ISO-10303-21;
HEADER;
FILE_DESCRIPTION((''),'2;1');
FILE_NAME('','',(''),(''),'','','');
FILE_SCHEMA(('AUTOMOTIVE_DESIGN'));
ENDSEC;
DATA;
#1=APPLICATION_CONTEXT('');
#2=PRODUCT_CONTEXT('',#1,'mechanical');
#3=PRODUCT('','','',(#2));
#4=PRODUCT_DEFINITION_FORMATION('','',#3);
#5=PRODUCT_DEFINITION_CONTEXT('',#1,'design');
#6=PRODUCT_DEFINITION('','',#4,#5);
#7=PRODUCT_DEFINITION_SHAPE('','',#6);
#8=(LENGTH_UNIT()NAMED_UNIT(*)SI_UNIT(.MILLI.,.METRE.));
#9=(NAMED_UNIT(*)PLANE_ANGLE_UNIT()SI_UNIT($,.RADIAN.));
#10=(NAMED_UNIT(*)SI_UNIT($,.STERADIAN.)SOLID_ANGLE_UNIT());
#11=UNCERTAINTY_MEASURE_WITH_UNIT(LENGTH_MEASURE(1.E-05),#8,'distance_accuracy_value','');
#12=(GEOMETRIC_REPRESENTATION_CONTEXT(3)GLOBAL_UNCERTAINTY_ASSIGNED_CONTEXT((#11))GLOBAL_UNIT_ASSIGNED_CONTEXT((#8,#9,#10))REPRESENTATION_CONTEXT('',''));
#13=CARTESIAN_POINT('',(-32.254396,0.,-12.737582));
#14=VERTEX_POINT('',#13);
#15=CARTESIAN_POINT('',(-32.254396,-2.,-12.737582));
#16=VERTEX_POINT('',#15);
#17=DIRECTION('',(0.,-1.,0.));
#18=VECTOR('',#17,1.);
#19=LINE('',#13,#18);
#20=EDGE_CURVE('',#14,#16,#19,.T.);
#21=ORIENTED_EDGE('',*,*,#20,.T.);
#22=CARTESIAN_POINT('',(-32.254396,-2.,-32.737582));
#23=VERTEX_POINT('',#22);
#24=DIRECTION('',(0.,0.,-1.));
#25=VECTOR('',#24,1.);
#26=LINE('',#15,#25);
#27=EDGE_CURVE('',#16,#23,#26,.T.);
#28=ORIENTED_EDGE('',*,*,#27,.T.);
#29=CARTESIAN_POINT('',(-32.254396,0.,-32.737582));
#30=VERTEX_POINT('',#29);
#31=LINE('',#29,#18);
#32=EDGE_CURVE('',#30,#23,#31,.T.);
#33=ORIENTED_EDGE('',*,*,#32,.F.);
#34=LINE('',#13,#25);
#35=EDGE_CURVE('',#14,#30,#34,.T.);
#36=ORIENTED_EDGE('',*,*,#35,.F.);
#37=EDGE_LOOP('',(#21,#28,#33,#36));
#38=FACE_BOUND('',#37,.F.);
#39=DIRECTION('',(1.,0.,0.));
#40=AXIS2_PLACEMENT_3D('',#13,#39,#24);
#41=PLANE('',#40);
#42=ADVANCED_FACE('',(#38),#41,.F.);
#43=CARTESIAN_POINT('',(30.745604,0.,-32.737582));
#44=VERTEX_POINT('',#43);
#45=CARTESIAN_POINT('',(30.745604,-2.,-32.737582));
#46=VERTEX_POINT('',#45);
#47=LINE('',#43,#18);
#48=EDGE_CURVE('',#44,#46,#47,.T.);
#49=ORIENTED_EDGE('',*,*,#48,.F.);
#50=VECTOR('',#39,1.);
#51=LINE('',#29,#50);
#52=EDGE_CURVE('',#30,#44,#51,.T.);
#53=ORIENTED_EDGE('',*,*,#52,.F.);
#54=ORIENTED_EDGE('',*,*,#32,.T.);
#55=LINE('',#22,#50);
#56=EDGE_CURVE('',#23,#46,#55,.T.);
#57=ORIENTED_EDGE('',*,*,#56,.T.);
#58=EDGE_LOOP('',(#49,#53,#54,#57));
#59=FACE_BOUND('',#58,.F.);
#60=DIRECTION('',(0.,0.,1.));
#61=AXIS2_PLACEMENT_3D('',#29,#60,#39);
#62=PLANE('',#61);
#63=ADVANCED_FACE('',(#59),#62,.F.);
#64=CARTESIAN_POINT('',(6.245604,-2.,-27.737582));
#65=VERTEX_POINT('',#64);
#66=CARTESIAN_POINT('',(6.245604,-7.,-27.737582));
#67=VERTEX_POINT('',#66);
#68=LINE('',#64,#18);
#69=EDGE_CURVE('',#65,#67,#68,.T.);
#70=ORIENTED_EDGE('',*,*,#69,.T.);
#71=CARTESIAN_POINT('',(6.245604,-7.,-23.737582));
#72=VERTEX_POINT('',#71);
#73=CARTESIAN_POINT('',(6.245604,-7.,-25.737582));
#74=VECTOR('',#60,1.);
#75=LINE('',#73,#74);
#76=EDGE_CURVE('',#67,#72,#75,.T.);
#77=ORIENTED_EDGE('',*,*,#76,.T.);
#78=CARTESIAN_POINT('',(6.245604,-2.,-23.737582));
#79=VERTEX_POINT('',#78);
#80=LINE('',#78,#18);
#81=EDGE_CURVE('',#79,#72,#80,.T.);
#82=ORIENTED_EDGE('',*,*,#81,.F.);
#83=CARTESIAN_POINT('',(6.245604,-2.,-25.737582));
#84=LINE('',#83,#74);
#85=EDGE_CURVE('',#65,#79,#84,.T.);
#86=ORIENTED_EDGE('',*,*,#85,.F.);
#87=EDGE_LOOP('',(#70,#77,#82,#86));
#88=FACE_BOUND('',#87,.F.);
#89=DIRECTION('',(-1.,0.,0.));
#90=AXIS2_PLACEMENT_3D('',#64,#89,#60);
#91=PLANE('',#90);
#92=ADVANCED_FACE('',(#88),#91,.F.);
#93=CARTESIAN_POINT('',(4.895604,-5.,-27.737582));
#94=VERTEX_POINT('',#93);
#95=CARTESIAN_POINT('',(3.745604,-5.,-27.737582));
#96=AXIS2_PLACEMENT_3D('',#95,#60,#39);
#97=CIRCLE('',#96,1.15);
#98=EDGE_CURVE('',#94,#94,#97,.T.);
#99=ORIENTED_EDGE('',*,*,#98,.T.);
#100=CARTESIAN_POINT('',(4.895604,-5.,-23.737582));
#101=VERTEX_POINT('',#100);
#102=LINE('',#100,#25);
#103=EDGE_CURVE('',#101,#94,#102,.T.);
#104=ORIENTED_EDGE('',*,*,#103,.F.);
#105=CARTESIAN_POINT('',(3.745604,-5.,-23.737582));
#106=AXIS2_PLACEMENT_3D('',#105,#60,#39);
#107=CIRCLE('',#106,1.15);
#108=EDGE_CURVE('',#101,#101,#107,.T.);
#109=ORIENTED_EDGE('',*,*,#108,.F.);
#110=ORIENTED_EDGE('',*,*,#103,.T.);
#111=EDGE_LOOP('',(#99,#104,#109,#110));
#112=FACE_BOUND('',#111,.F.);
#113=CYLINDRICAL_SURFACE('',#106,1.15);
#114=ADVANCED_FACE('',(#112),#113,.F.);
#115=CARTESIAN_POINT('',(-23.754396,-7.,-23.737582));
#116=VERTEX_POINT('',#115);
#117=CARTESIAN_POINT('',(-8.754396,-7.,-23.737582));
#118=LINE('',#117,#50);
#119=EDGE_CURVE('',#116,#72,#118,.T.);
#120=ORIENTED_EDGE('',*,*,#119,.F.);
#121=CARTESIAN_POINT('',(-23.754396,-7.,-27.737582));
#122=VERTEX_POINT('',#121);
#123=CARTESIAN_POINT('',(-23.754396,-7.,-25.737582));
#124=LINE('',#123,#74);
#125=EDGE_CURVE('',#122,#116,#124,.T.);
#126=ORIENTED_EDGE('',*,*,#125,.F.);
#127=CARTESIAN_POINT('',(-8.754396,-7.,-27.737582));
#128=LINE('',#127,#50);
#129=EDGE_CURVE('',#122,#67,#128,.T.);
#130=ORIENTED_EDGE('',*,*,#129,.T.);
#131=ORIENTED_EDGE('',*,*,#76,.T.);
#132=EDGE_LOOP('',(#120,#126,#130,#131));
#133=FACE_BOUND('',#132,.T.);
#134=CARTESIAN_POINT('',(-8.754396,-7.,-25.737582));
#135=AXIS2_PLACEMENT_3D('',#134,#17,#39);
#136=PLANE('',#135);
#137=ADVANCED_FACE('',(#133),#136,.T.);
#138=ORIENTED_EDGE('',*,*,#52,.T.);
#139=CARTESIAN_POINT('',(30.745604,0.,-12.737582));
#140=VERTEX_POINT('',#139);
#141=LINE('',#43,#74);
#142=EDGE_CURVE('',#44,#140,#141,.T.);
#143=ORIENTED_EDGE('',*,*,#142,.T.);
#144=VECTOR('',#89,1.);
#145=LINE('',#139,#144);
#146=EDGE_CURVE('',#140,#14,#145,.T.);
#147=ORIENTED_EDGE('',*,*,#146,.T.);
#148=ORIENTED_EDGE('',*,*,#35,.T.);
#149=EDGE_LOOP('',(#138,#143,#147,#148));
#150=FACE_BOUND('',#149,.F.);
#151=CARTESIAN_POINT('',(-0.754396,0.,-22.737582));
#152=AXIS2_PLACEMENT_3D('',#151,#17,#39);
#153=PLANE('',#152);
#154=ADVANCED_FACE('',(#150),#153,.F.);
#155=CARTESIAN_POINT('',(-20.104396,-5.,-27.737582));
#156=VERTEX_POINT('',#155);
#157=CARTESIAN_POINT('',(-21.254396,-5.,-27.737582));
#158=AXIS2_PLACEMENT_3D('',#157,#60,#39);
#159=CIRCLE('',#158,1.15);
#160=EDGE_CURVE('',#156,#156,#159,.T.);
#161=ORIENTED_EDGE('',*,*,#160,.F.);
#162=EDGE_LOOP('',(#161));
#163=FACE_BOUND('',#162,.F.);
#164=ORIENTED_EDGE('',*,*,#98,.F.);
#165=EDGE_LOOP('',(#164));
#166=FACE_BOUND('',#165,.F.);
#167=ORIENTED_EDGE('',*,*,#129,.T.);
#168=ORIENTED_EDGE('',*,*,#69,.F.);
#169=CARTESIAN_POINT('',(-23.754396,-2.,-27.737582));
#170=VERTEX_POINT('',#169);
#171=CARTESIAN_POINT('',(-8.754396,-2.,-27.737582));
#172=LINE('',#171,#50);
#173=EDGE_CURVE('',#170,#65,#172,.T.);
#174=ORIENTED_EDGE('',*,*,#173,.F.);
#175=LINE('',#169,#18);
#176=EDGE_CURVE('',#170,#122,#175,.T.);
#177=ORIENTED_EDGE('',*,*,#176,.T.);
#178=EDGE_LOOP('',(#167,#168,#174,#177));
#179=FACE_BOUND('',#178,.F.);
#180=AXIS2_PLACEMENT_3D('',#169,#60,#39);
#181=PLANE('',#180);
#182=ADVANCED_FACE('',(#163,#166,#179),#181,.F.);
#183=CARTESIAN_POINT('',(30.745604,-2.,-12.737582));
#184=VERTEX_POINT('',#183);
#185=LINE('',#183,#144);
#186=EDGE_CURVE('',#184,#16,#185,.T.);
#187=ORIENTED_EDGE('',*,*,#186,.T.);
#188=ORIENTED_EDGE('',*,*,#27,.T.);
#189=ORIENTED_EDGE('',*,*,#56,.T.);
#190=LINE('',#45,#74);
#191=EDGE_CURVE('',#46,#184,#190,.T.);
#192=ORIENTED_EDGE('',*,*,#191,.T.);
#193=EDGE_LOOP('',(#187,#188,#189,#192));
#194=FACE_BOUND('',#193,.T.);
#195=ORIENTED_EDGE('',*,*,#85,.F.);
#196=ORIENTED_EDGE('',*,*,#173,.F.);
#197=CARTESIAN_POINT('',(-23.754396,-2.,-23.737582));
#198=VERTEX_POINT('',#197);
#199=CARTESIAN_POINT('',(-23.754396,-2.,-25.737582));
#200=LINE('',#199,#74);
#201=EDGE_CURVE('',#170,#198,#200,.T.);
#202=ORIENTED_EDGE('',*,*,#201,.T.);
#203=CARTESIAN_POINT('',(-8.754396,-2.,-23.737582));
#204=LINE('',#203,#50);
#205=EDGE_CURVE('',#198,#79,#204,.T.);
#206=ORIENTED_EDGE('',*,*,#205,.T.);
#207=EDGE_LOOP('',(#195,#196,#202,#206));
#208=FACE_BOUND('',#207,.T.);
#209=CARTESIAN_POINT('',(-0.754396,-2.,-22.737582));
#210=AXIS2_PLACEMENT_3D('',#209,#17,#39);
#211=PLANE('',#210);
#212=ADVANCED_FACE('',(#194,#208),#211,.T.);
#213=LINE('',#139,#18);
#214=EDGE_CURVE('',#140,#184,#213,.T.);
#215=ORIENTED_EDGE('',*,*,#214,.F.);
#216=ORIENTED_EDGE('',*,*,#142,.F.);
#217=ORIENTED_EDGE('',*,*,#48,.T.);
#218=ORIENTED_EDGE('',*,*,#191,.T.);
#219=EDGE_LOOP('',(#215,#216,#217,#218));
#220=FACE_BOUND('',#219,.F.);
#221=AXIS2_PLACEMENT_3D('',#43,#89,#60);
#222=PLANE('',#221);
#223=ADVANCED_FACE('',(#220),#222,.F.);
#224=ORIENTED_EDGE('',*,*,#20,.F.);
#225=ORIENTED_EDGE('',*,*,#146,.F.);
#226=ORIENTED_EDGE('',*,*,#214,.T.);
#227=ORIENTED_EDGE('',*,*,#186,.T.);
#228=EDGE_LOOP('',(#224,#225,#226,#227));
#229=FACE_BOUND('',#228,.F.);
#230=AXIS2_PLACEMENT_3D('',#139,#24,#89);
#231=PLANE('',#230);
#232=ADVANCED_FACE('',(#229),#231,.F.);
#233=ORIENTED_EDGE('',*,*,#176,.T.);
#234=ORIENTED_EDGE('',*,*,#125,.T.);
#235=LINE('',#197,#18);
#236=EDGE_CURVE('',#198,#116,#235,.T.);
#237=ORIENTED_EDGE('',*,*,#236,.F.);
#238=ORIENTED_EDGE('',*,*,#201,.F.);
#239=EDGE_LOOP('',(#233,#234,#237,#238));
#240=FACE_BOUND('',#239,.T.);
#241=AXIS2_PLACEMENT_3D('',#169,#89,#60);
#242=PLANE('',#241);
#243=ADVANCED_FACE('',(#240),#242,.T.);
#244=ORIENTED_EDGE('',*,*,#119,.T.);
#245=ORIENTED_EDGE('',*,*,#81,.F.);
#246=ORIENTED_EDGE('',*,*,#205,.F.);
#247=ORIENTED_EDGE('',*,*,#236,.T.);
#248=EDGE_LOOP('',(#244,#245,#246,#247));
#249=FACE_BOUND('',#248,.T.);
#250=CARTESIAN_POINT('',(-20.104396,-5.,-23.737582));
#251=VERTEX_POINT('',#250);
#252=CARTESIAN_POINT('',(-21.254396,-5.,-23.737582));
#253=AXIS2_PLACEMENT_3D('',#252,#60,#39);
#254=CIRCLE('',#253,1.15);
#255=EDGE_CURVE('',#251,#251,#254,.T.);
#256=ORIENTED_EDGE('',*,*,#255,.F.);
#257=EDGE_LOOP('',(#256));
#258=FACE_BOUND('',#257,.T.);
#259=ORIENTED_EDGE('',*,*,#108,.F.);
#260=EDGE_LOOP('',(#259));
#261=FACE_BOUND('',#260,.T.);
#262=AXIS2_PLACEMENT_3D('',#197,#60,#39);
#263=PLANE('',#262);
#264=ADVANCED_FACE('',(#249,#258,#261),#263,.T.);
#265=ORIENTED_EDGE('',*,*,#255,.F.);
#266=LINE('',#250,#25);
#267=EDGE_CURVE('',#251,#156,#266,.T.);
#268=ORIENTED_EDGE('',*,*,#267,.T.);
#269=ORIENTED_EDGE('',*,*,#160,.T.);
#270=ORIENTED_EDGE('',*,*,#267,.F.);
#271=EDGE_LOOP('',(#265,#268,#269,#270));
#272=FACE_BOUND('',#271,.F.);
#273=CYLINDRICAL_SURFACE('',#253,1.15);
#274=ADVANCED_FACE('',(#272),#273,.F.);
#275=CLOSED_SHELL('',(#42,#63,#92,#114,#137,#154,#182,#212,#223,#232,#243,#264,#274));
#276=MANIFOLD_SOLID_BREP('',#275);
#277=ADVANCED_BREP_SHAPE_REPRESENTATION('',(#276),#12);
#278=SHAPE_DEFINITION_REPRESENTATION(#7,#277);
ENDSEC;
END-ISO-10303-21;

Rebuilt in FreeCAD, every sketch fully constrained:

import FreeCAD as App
import Part
import Sketcher

V = App.Vector


def add_polygon(sketch, points):
    """Adds a closed chain of lines whose ends are joined by coincident constraints."""
    first, n = sketch.GeometryCount, len(points)
    for a, b in zip(points, points[1:] + points[:1]):
        sketch.addGeometry(Part.LineSegment(App.Vector(*a, 0), App.Vector(*b, 0)), False)
    for i in range(n):
        sketch.addConstraint(Sketcher.Constraint("Coincident", first + i, 2, first + (i + 1) % n, 1))

doc = App.newDocument("Part")
body = doc.addObject("PartDesign::Body", "Body")

# Sketch on XZ plane
sketch1 = doc.addObject("Sketcher::SketchObject", "Sketch")
body.addObject(sketch1)
sketch1.AttachmentSupport = (doc.XZ_Plane, [""])
sketch1.MapMode = "FlatFace"
add_polygon(sketch1, [(-32, -13), (-32, -33), (31, -33), (31, -13)])  # lines 0-3
sketch1.addConstraint([
    Sketcher.Constraint("Vertical", 0),
    Sketcher.Constraint("Horizontal", 1),
    Sketcher.Constraint("Vertical", 2),
    Sketcher.Constraint("Horizontal", 3),
    Sketcher.Constraint("DistanceX", 1, 1, 1, 2, 63.0),
    Sketcher.Constraint("DistanceY", 0, 2, 0, 1, 20.0),
    Sketcher.Constraint("DistanceX", 0, 2, -1, 1, 32.254396),
    Sketcher.Constraint("DistanceY", 0, 2, -1, 1, 32.737582),
])
pad1 = doc.addObject("PartDesign::Pad", "Pad")
body.addObject(pad1)
pad1.Profile = sketch1
pad1.Length = 2

# Sketch on XZ plane
sketch2 = doc.addObject("Sketcher::SketchObject", "Sketch001")
body.addObject(sketch2)
sketch2.AttachmentSupport = (doc.XZ_Plane, [""])
sketch2.MapMode = "FlatFace"
sketch2.AttachmentOffset = App.Placement(V(0, 0, 2), App.Rotation())
add_polygon(sketch2, [(-23.8, -23.7), (-23.8, -27.7), (6.2, -27.7), (6.2, -23.7)])  # lines 0-3
sketch2.addConstraint([
    Sketcher.Constraint("Vertical", 0),
    Sketcher.Constraint("Horizontal", 1),
    Sketcher.Constraint("Vertical", 2),
    Sketcher.Constraint("Horizontal", 3),
    Sketcher.Constraint("DistanceX", 1, 1, 1, 2, 30.0),
    Sketcher.Constraint("DistanceY", 0, 2, 0, 1, 4.0),
    Sketcher.Constraint("DistanceY", 0, 2, -1, 1, 27.737582),
    Sketcher.Constraint("DistanceX", 0, 2, -1, 1, 23.754396),
])
pad2 = doc.addObject("PartDesign::Pad", "Pad001")
body.addObject(pad2)
pad2.Profile = sketch2
pad2.Length = 5

# Sketch on XY plane
sketch3 = doc.addObject("Sketcher::SketchObject", "Sketch002")
body.addObject(sketch3)
sketch3.AttachmentSupport = (doc.XY_Plane, [""])
sketch3.MapMode = "FlatFace"
sketch3.AttachmentOffset = App.Placement(V(0, 0, -23.737582), App.Rotation())
sketch3.addGeometry([
    Part.Circle(V(-21.3, -5, 0), V(0, 0, 1), 1.1),
    Part.Circle(V(3.7, -5, 0), V(0, 0, 1), 1.1),
], False)
sketch3.addConstraint([
    Sketcher.Constraint("Equal", 0, 1),
    Sketcher.Constraint("Horizontal", 0, 3, 1, 3),
    Sketcher.Constraint("Diameter", 0, 2.3),
    Sketcher.Constraint("DistanceY", 0, 3, -1, 1, 5.0),
    Sketcher.Constraint("DistanceX", 0, 3, 1, 3, 25.0),
    Sketcher.Constraint("DistanceX", 0, 3, -1, 1, 21.254396),
])
pocket1 = doc.addObject("PartDesign::Pocket", "Pocket")
body.addObject(pocket1)
pocket1.Profile = sketch3
pocket1.Length = 25

doc.recompute()
